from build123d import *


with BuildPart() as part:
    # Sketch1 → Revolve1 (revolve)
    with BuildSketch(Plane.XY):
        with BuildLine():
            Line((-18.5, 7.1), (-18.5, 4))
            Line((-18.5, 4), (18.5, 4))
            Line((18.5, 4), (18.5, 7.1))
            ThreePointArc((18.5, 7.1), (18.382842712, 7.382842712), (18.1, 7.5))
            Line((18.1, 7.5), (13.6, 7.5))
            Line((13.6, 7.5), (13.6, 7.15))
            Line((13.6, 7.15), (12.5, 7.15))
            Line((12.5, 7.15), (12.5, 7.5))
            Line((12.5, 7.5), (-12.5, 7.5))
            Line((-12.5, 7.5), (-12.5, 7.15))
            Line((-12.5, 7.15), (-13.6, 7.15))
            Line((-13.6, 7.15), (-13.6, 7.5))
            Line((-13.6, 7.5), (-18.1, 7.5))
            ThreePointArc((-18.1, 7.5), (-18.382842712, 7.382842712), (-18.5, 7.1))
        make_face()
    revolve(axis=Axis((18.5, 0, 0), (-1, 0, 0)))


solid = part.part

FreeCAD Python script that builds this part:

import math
import FreeCAD as App
import Part
import Sketcher

V = App.Vector

doc = App.newDocument("Part")
params = doc.addObject("Spreadsheet::Sheet", "Params")
for row, (alias, value) in enumerate([
    ("sketch1_radius", "0.4 mm"),
    ("sketch1_width", "37 mm"),
    ("sketch1_width2", "25 mm"),
    ("sketch1_width3", "4.5 mm"),
    ("sketch1_height", "3.1 mm"),
    ("revolution_angle", "360 deg"),
], start=1):
    params.set(f"A{row}", alias)
    params.set(f"B{row}", "=" + value)
    params.setAlias(f"B{row}", alias)

body = doc.addObject("PartDesign::Body", "Body")

# Sketch on XY plane
sketch1 = body.newObject("Sketcher::SketchObject", "Sketch")
sketch1.AttachmentSupport = (doc.getObject("XY_Plane"), [""])
sketch1.MapMode = "FlatFace"
sketch1.addGeometry([
    Part.LineSegment(V(-18.5, 7.1, 0), V(-18.5, 4, 0)),  # 0
    Part.LineSegment(V(-18.5, 4, 0), V(18.5, 4, 0)),  # 1
    Part.LineSegment(V(18.5, 4, 0), V(18.5, 7.1, 0)),  # 2
    Part.ArcOfCircle(Part.Circle(V(18.1, 7.1, 0), V(0, 0, 1), 0.4), math.radians(0), math.radians(90)),  # 3
    Part.LineSegment(V(18.1, 7.5, 0), V(13.6, 7.5, 0)),  # 4
    Part.LineSegment(V(13.6, 7.5, 0), V(13.6, 7.15, 0)),  # 5
    Part.LineSegment(V(13.6, 7.15, 0), V(12.5, 7.15, 0)),  # 6
    Part.LineSegment(V(12.5, 7.15, 0), V(12.5, 7.5, 0)),  # 7
    Part.LineSegment(V(12.5, 7.5, 0), V(-12.5, 7.5, 0)),  # 8
    Part.LineSegment(V(-12.5, 7.5, 0), V(-12.5, 7.15, 0)),  # 9
    Part.LineSegment(V(-12.5, 7.15, 0), V(-13.6, 7.15, 0)),  # 10
    Part.LineSegment(V(-13.6, 7.15, 0), V(-13.6, 7.5, 0)),  # 11
    Part.LineSegment(V(-13.6, 7.5, 0), V(-18.1, 7.5, 0)),  # 12
    Part.ArcOfCircle(Part.Circle(V(-18.1, 7.1, 0), V(0, 0, 1), 0.4), math.radians(90), math.radians(180)),  # 13
], False)
sketch1.addConstraint([
    Sketcher.Constraint("Coincident", 0, 2, 1, 1),
    Sketcher.Constraint("Coincident", 1, 2, 2, 1),
    Sketcher.Constraint("Tangent", 2, 2, 3, 1),
    Sketcher.Constraint("Tangent", 3, 2, 4, 1),
    Sketcher.Constraint("Coincident", 4, 2, 5, 1),
    Sketcher.Constraint("Coincident", 5, 2, 6, 1),
    Sketcher.Constraint("Coincident", 6, 2, 7, 1),
    Sketcher.Constraint("Coincident", 7, 2, 8, 1),
    Sketcher.Constraint("Coincident", 8, 2, 9, 1),
    Sketcher.Constraint("Coincident", 9, 2, 10, 1),
    Sketcher.Constraint("Coincident", 10, 2, 11, 1),
    Sketcher.Constraint("Coincident", 11, 2, 12, 1),
    Sketcher.Constraint("Tangent", 12, 2, 13, 1),
    Sketcher.Constraint("Tangent", 13, 2, 0, 1),
    Sketcher.Constraint("Vertical", 0),
    Sketcher.Constraint("Horizontal", 1),
    Sketcher.Constraint("Vertical", 2),
    Sketcher.Constraint("Horizontal", 4),
    Sketcher.Constraint("Vertical", 5),
    Sketcher.Constraint("Horizontal", 6),
    Sketcher.Constraint("Vertical", 7),
    Sketcher.Constraint("Horizontal", 8),
    Sketcher.Constraint("Vertical", 9),
    Sketcher.Constraint("Horizontal", 10),
    Sketcher.Constraint("Vertical", 11),
    Sketcher.Constraint("Horizontal", 12),
    Sketcher.Constraint("Equal", 3, 13),
    Sketcher.Constraint("Symmetric", 3, 3, 13, 3, -2),
    Sketcher.Constraint("Symmetric", 6, 2, 9, 2, -2),
    Sketcher.Constraint("Horizontal", 4, 2, 7, 2),
    Sketcher.Constraint("Equal", 6, 10),
    Sketcher.Constraint("Radius", 3, 0.4),
    Sketcher.Constraint("DistanceX", 1, 1, 1, 2, 37.0),
    Sketcher.Constraint("DistanceX", 8, 2, 8, 1, 25.0),
    Sketcher.Constraint("DistanceX", 4, 2, 4, 1, 4.5),
    Sketcher.Constraint("DistanceY", 0, 2, 0, 1, 3.1),
    Sketcher.Constraint("DistanceY", -1, 1, 0, 2, 4.0),
    Sketcher.Constraint("DistanceY", 5, 2, 5, 1, 0.35),
])
sketch1.setExpression("Constraints[31]", "Params.sketch1_radius")
sketch1.setExpression("Constraints[32]", "Params.sketch1_width")
sketch1.setExpression("Constraints[33]", "Params.sketch1_width2")
sketch1.setExpression("Constraints[34]", "Params.sketch1_width3")
sketch1.setExpression("Constraints[35]", "Params.sketch1_height")
revolution = body.newObject("PartDesign::Revolution", "Revolution")
revolution.Profile = sketch1
revolution.ReferenceAxis = (sketch1, ["H_Axis"])
revolution.setExpression("Angle", "Params.revolution_angle")

doc.recompute()
